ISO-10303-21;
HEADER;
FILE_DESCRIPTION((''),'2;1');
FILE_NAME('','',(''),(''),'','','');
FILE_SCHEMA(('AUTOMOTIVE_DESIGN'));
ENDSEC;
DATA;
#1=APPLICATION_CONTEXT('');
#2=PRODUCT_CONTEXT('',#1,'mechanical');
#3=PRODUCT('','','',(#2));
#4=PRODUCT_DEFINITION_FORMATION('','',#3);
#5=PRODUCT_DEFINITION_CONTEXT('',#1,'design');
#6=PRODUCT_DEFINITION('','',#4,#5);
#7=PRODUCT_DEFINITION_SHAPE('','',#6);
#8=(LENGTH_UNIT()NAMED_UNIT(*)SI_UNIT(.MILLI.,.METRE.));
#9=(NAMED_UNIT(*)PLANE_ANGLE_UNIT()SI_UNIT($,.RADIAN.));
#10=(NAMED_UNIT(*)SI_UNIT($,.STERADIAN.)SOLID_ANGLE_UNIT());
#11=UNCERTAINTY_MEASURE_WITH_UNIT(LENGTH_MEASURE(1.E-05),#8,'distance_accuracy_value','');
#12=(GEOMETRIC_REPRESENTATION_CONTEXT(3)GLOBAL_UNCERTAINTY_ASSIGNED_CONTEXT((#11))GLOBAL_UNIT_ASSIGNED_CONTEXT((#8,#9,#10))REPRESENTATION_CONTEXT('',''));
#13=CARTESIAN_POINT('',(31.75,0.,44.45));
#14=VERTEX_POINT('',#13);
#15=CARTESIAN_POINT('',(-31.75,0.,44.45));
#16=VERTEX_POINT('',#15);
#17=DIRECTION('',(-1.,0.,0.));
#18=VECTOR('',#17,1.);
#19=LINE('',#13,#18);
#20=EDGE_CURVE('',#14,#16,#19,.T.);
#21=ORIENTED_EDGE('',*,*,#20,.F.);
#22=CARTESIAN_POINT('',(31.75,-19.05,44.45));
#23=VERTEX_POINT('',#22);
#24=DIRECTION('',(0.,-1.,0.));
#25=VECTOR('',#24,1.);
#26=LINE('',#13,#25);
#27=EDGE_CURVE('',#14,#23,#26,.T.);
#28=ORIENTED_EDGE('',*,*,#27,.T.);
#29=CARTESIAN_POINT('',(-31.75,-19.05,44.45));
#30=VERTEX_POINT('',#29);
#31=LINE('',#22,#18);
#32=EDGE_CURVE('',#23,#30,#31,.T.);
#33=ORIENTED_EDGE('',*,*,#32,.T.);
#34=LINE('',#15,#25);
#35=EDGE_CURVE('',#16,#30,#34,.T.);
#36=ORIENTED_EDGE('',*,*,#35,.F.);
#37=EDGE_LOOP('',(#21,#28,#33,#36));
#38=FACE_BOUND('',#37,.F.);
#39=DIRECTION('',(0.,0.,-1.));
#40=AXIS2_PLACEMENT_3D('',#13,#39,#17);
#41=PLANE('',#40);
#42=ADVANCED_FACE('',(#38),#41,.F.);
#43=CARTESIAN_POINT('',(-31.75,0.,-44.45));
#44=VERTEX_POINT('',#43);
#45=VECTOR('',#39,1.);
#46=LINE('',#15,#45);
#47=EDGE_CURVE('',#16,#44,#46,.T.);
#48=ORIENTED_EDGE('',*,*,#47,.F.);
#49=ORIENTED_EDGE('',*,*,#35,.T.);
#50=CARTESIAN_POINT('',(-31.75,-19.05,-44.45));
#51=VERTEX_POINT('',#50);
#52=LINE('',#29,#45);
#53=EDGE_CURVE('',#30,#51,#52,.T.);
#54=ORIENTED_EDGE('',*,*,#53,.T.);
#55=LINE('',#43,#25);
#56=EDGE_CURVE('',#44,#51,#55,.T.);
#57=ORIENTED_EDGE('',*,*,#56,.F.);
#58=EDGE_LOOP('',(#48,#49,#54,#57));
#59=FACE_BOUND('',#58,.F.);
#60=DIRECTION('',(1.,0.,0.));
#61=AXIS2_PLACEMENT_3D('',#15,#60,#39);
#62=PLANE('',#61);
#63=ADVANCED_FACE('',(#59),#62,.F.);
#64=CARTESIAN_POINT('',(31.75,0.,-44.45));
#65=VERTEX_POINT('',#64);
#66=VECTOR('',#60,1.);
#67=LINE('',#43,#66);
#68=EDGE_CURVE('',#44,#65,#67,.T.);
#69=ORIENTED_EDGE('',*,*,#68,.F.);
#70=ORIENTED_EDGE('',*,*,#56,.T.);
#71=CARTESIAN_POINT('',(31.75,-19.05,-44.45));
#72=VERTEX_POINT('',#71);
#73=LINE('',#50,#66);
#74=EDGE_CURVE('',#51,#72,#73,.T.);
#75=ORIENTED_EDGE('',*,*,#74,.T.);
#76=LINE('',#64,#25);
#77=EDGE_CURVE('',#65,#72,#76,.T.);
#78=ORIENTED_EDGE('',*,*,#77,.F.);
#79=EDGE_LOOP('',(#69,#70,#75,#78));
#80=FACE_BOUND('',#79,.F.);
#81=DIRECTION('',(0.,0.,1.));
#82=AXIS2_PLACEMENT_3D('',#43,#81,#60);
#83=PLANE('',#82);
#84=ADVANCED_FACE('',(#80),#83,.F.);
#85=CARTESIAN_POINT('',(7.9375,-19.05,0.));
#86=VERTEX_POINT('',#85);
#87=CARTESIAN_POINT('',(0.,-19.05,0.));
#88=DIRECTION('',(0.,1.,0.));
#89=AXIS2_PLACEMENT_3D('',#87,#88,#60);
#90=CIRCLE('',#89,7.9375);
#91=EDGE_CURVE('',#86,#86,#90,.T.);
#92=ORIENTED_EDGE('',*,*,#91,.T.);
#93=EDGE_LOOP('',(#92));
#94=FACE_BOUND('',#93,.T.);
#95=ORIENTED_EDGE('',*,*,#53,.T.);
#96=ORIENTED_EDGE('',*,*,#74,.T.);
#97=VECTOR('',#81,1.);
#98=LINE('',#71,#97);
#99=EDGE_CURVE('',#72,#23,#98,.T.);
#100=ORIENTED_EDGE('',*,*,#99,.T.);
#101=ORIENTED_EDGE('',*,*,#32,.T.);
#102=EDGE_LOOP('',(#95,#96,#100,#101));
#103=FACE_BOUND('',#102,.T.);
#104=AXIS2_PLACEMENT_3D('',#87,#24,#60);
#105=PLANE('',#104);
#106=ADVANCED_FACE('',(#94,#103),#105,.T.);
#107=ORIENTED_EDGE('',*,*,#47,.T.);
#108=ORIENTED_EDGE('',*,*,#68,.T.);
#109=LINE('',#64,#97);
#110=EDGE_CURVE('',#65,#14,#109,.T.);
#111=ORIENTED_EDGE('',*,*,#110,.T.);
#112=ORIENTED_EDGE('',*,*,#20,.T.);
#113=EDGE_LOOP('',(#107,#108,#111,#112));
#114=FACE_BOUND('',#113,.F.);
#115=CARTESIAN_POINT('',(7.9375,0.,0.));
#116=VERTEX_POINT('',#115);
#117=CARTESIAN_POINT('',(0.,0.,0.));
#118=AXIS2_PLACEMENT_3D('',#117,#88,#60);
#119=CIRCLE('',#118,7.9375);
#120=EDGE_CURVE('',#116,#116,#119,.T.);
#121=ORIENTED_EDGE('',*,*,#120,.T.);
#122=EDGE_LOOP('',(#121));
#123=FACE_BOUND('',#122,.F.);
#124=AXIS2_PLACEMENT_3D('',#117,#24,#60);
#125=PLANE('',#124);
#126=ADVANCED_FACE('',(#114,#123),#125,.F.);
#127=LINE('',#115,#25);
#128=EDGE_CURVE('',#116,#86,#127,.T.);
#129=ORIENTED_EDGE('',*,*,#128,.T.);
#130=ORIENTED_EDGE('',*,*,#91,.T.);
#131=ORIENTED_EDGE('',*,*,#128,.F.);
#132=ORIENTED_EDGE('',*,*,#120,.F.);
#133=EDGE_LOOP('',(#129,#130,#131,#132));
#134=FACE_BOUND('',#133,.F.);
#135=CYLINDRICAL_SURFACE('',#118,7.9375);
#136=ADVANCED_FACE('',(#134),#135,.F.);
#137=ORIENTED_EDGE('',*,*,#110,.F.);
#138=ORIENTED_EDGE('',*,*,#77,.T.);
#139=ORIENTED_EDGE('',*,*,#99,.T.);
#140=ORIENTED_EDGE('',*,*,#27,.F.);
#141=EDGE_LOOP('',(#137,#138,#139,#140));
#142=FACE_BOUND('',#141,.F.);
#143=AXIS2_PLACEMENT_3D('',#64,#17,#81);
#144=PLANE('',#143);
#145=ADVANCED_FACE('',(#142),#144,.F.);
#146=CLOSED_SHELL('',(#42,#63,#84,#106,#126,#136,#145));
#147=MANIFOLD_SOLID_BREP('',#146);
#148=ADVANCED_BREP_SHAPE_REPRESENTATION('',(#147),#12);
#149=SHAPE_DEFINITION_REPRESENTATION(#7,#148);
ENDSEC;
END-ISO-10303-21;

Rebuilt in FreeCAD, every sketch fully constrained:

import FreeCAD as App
import Part
import Sketcher

V = App.Vector
Q = App.Units.Quantity


def add_polygon(sketch, points):
    """Adds a closed chain of lines whose ends are joined by coincident constraints."""
    first, n = sketch.GeometryCount, len(points)
    for a, b in zip(points, points[1:] + points[:1]):
        sketch.addGeometry(Part.LineSegment(App.Vector(*a, 0), App.Vector(*b, 0)), False)
    for i in range(n):
        sketch.addConstraint(Sketcher.Constraint("Coincident", first + i, 2, first + (i + 1) % n, 1))

doc = App.newDocument("Part")
body = doc.addObject("PartDesign::Body", "Body")

# Sketch on XZ plane
sketch1 = doc.addObject("Sketcher::SketchObject", "Sketch")
body.addObject(sketch1)
sketch1.AttachmentSupport = (doc.XZ_Plane, [""])
sketch1.MapMode = "FlatFace"
add_polygon(sketch1, [(-32, 44), (-32, -44), (32, -44), (32, 44)])  # lines 0-3
sketch1.addGeometry(Part.Circle(V(0, 0, 0), V(0, 0, 1), 8), False)  # 4
sketch1.addConstraint(Sketcher.Constraint("Vertical", 0))
sketch1.addConstraint(Sketcher.Constraint("Horizontal", 1))
sketch1.addConstraint(Sketcher.Constraint("Vertical", 2))
sketch1.addConstraint(Sketcher.Constraint("Horizontal", 3))
sketch1.addConstraint(Sketcher.Constraint("Coincident", 4, 3, -1, 1))
sketch1.addConstraint(Sketcher.Constraint("Symmetric", 0, 2, 2, 2, -1, 1))
sketch1.addConstraint(Sketcher.Constraint("Diameter", 4, Q("0.625 in")))
sketch1.addConstraint(Sketcher.Constraint("DistanceX", 1, 1, 1, 2, Q("2.5 in")))
sketch1.addConstraint(Sketcher.Constraint("DistanceY", 0, 2, 0, 1, Q("3.5 in")))
pad1 = doc.addObject("PartDesign::Pad", "Pad")
body.addObject(pad1)
pad1.Profile = sketch1
pad1.Length = Q("0.75 in")

doc.recompute()
